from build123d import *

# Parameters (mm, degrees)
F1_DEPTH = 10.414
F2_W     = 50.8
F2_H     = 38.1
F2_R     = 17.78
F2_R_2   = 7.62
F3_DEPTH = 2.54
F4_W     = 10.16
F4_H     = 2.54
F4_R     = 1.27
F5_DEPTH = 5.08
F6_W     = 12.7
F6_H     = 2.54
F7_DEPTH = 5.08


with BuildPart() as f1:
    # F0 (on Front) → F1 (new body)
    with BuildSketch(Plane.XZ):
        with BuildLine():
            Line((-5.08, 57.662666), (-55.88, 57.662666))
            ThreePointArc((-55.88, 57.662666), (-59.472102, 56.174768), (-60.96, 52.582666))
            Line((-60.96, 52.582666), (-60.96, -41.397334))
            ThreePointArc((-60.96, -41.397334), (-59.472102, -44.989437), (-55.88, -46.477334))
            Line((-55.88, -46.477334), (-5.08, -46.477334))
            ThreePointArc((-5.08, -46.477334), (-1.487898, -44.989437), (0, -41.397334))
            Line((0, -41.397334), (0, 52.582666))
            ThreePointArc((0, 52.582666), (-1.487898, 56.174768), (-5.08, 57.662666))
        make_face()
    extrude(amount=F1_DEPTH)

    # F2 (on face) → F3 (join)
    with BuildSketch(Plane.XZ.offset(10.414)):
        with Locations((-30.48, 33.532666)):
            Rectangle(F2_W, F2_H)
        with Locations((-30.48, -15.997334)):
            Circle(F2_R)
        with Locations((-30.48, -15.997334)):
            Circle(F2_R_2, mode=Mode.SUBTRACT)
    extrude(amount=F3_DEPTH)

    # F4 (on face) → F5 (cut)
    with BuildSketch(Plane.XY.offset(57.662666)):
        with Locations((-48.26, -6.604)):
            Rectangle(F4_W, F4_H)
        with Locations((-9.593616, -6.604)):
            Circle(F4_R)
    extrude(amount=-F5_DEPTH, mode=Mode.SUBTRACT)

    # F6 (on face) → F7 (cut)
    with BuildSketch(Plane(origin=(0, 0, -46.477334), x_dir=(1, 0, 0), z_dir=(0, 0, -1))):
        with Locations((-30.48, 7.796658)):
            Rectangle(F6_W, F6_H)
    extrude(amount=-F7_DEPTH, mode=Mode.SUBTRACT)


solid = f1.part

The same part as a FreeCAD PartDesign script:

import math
import FreeCAD as App
import Part
import Sketcher
from FreeCAD import Vector
Q = App.Units.Quantity

doc = App.newDocument("Part")
params = doc.addObject("Spreadsheet::Sheet", "Params")
for row, (alias, value) in enumerate([
    ("sketch1_radius", "0.2000001 in"),
    ("sketch1_width", "2 in"),
    ("sketch1_height", "3.7 in"),
    ("pad1_length", "0.41 in"),
    ("sketch2_diameter", "1.4 in"),
    ("sketch2_diameter2", "0.6 in"),
    ("sketch2_width", "2 in"),
    ("sketch2_height", "1.5 in"),
    ("pad2_length", "0.1 in"),
    ("sketch3_diameter", "0.1 in"),
    ("sketch3_width", "0.4 in"),
    ("sketch3_height", "0.1 in"),
    ("pocket1_length", "0.2 in"),
    ("sketch4_width", "0.5 in"),
    ("sketch4_height", "0.1 in"),
    ("pocket2_length", "0.2 in"),
], start=1):
    params.set(f"A{row}", alias)
    params.set(f"B{row}", "=" + value)
    params.setAlias(f"B{row}", alias)

body = doc.addObject("PartDesign::Body", "Body")

# Sketch on XZ plane
sketch1 = body.newObject("Sketcher::SketchObject", "Sketch")
sketch1.AttachmentSupport = (doc.getObject("XZ_Plane"), [""])
sketch1.MapMode = "FlatFace"
sketch1.addGeometry([
    Part.LineSegment(Vector(-5, 58, 0), Vector(-56, 58, 0)),  # 0
    Part.ArcOfCircle(Part.Circle(Vector(-56, 53, 0), Vector(0, 0, 1), 5), math.radians(90), math.radians(180)),  # 1
    Part.LineSegment(Vector(-61, 53, 0), Vector(-61, -41, 0)),  # 2
    Part.ArcOfCircle(Part.Circle(Vector(-56, -41, 0), Vector(0, 0, 1), 5), math.radians(180), math.radians(270)),  # 3
    Part.LineSegment(Vector(-56, -46, 0), Vector(-5, -46, 0)),  # 4
    Part.ArcOfCircle(Part.Circle(Vector(-5, -41, 0), Vector(0, 0, 1), 5), math.radians(-90), math.radians(0)),  # 5
    Part.LineSegment(Vector(0, -41, 0), Vector(0, 53, 0)),  # 6
    Part.ArcOfCircle(Part.Circle(Vector(-5, 53, 0), Vector(0, 0, 1), 5), math.radians(0), math.radians(90)),  # 7
], False)
sketch1.addConstraint([
    Sketcher.Constraint("Tangent", 0, 2, 1, 1),
    Sketcher.Constraint("Tangent", 1, 2, 2, 1),
    Sketcher.Constraint("Tangent", 2, 2, 3, 1),
    Sketcher.Constraint("Tangent", 3, 2, 4, 1),
    Sketcher.Constraint("Tangent", 4, 2, 5, 1),
    Sketcher.Constraint("Tangent", 5, 2, 6, 1),
    Sketcher.Constraint("Tangent", 6, 2, 7, 1),
    Sketcher.Constraint("Tangent", 7, 2, 0, 1),
    Sketcher.Constraint("Horizontal", 0),
    Sketcher.Constraint("Vertical", 2),
    Sketcher.Constraint("Horizontal", 4),
    Sketcher.Constraint("Vertical", 6),
    Sketcher.Constraint("Equal", 1, 3),
    Sketcher.Constraint("Equal", 3, 5),
    Sketcher.Constraint("Equal", 5, 7),
    Sketcher.Constraint("PointOnObject", 5, 2, -2),
    Sketcher.Constraint("Radius", 1, Q("0.2000001 in")),
    Sketcher.Constraint("DistanceX", 0, 2, 0, 1, Q("2 in")),
    Sketcher.Constraint("DistanceY", 2, 2, 2, 1, Q("3.7 in")),
    Sketcher.Constraint("DistanceY", -1, 1, 1, 3, 52.582664),
])
sketch1.setExpression("Constraints[16]", "Params.sketch1_radius")
sketch1.setExpression("Constraints[17]", "Params.sketch1_width")
sketch1.setExpression("Constraints[18]", "Params.sketch1_height")
pad1 = body.newObject("PartDesign::Pad", "Pad")
pad1.Profile = sketch1
pad1.setExpression("Length", "Params.pad1_length")

# Sketch on XZ plane
sketch2 = body.newObject("Sketcher::SketchObject", "Sketch001")
sketch2.AttachmentSupport = (doc.getObject("XZ_Plane"), [""])
sketch2.MapMode = "FlatFace"
sketch2.AttachmentOffset = App.Placement(Vector(0, 0, 0.41 * 25.4), App.Rotation())
sketch2.addGeometry([
    Part.LineSegment(Vector(-56, 53, 0), Vector(-56, 14, 0)),  # 0
    Part.LineSegment(Vector(-56, 14, 0), Vector(-5, 14, 0)),  # 1
    Part.LineSegment(Vector(-5, 14, 0), Vector(-5, 53, 0)),  # 2
    Part.LineSegment(Vector(-5, 53, 0), Vector(-56, 53, 0)),  # 3
    Part.Circle(Vector(-30, -16, 0), Vector(0, 0, 1), 18),  # 4
    Part.Circle(Vector(-30, -16, 0), Vector(0, 0, 1), 8),  # 5
], False)
sketch2.addConstraint([
    Sketcher.Constraint("Coincident", 0, 2, 1, 1),
    Sketcher.Constraint("Coincident", 1, 2, 2, 1),
    Sketcher.Constraint("Coincident", 2, 2, 3, 1),
    Sketcher.Constraint("Coincident", 3, 2, 0, 1),
    Sketcher.Constraint("Vertical", 0),
    Sketcher.Constraint("Horizontal", 1),
    Sketcher.Constraint("Vertical", 2),
    Sketcher.Constraint("Horizontal", 3),
    Sketcher.Constraint("Coincident", 5, 3, 4, 3),
    Sketcher.Constraint("Diameter", 4, Q("1.4 in")),
    Sketcher.Constraint("Diameter", 5, Q("0.6 in")),
    Sketcher.Constraint("DistanceX", 1, 1, 1, 2, Q("2 in")),
    Sketcher.Constraint("DistanceY", 0, 2, 0, 1, Q("1.5 in")),
    Sketcher.Constraint("DistanceX", 0, 2, 4, 3, Q("1 in")),
    Sketcher.Constraint("DistanceX", 4, 3, -1, 1, Q("1.2 in")),
    Sketcher.Constraint("DistanceY", 4, 3, 0, 2, Q("1.2 in")),
    Sketcher.Constraint("DistanceY", 4, 3, -1, 1, 15.997334),
])
sketch2.setExpression("Constraints[9]", "Params.sketch2_diameter")
sketch2.setExpression("Constraints[10]", "Params.sketch2_diameter2")
sketch2.setExpression("Constraints[11]", "Params.sketch2_width")
sketch2.setExpression("Constraints[12]", "Params.sketch2_height")
pad2 = body.newObject("PartDesign::Pad", "Pad001")
pad2.Profile = sketch2
pad2.setExpression("Length", "Params.pad2_length")

# Sketch on XY plane
sketch3 = body.newObject("Sketcher::SketchObject", "Sketch002")
sketch3.AttachmentSupport = (doc.getObject("XY_Plane"), [""])
sketch3.MapMode = "FlatFace"
sketch3.AttachmentOffset = App.Placement(Vector(0, 0, 57.662666), App.Rotation())
sketch3.addGeometry([
    Part.LineSegment(Vector(-53.3, -5.3, 0), Vector(-53.3, -7.9, 0)),  # 0
    Part.LineSegment(Vector(-53.3, -7.9, 0), Vector(-43.2, -7.9, 0)),  # 1
    Part.LineSegment(Vector(-43.2, -7.9, 0), Vector(-43.2, -5.3, 0)),  # 2
    Part.LineSegment(Vector(-43.2, -5.3, 0), Vector(-53.3, -5.3, 0)),  # 3
    Part.Circle(Vector(-9.6, -6.6, 0), Vector(0, 0, 1), 1.3),  # 4
], False)
sketch3.addConstraint([
    Sketcher.Constraint("Coincident", 0, 2, 1, 1),
    Sketcher.Constraint("Coincident", 1, 2, 2, 1),
    Sketcher.Constraint("Coincident", 2, 2, 3, 1),
    Sketcher.Constraint("Coincident", 3, 2, 0, 1),
    Sketcher.Constraint("Vertical", 0),
    Sketcher.Constraint("Horizontal", 1),
    Sketcher.Constraint("Vertical", 2),
    Sketcher.Constraint("Horizontal", 3),
    Sketcher.Constraint("Diameter", 4, Q("0.1 in")),
    Sketcher.Constraint("DistanceX", 1, 1, 1, 2, Q("0.4 in")),
    Sketcher.Constraint("DistanceY", 0, 2, 0, 1, Q("0.1 in")),
    Sketcher.Constraint("DistanceX", 0, 2, -1, 1, Q("2.1 in")),
    Sketcher.Constraint("DistanceY", 4, 3, -1, 1, Q("0.26 in")),
    Sketcher.Constraint("DistanceY", 0, 2, -1, 1, Q("0.31 in")),
    Sketcher.Constraint("DistanceX", 4, 3, -1, 1, 9.593616),
])
sketch3.setExpression("Constraints[8]", "Params.sketch3_diameter")
sketch3.setExpression("Constraints[9]", "Params.sketch3_width")
sketch3.setExpression("Constraints[10]", "Params.sketch3_height")
pocket1 = body.newObject("PartDesign::Pocket", "Pocket")
pocket1.Profile = sketch3
pocket1.setExpression("Length", "Params.pocket1_length")

# Sketch on XY plane
sketch4 = body.newObject("Sketcher::SketchObject", "Sketch003")
sketch4.AttachmentSupport = (doc.getObject("XY_Plane"), [""])
sketch4.MapMode = "FlatFace"
sketch4.AttachmentOffset = App.Placement(Vector(0, 0, -46.477334), App.Rotation())
sketch4.addGeometry([
    Part.LineSegment(Vector(-36.8, -9.1, 0), Vector(-36.8, -6.5, 0)),
    Part.LineSegment(Vector(-36.8, -6.5, 0), Vector(-24.1, -6.5, 0)),
    Part.LineSegment(Vector(-24.1, -6.5, 0), Vector(-24.1, -9.1, 0)),
    Part.LineSegment(Vector(-24.1, -9.1, 0), Vector(-36.8, -9.1, 0)),
], False)
sketch4.addConstraint([
    Sketcher.Constraint("Coincident", 0, 2, 1, 1),
    Sketcher.Constraint("Coincident", 1, 2, 2, 1),
    Sketcher.Constraint("Coincident", 2, 2, 3, 1),
    Sketcher.Constraint("Coincident", 3, 2, 0, 1),
    Sketcher.Constraint("Vertical", 0),
    Sketcher.Constraint("Horizontal", 1),
    Sketcher.Constraint("Vertical", 2),
    Sketcher.Constraint("Horizontal", 3),
    Sketcher.Constraint("DistanceX", 1, 1, 1, 2, Q("0.5 in")),
    Sketcher.Constraint("DistanceY", 0, 1, 0, 2, Q("0.1 in")),
    Sketcher.Constraint("DistanceX", 0, 2, -1, 1, Q("1.45 in")),
    Sketcher.Constraint("DistanceY", 0, 2, -1, 1, 6.526658),
])
sketch4.setExpression("Constraints[8]", "Params.sketch4_width")
sketch4.setExpression("Constraints[9]", "Params.sketch4_height")
pocket2 = body.newObject("PartDesign::Pocket", "Pocket001")
pocket2.Profile = sketch4
pocket2.setExpression("Length", "Params.pocket2_length")
pocket2.Reversed = True

doc.recompute()
